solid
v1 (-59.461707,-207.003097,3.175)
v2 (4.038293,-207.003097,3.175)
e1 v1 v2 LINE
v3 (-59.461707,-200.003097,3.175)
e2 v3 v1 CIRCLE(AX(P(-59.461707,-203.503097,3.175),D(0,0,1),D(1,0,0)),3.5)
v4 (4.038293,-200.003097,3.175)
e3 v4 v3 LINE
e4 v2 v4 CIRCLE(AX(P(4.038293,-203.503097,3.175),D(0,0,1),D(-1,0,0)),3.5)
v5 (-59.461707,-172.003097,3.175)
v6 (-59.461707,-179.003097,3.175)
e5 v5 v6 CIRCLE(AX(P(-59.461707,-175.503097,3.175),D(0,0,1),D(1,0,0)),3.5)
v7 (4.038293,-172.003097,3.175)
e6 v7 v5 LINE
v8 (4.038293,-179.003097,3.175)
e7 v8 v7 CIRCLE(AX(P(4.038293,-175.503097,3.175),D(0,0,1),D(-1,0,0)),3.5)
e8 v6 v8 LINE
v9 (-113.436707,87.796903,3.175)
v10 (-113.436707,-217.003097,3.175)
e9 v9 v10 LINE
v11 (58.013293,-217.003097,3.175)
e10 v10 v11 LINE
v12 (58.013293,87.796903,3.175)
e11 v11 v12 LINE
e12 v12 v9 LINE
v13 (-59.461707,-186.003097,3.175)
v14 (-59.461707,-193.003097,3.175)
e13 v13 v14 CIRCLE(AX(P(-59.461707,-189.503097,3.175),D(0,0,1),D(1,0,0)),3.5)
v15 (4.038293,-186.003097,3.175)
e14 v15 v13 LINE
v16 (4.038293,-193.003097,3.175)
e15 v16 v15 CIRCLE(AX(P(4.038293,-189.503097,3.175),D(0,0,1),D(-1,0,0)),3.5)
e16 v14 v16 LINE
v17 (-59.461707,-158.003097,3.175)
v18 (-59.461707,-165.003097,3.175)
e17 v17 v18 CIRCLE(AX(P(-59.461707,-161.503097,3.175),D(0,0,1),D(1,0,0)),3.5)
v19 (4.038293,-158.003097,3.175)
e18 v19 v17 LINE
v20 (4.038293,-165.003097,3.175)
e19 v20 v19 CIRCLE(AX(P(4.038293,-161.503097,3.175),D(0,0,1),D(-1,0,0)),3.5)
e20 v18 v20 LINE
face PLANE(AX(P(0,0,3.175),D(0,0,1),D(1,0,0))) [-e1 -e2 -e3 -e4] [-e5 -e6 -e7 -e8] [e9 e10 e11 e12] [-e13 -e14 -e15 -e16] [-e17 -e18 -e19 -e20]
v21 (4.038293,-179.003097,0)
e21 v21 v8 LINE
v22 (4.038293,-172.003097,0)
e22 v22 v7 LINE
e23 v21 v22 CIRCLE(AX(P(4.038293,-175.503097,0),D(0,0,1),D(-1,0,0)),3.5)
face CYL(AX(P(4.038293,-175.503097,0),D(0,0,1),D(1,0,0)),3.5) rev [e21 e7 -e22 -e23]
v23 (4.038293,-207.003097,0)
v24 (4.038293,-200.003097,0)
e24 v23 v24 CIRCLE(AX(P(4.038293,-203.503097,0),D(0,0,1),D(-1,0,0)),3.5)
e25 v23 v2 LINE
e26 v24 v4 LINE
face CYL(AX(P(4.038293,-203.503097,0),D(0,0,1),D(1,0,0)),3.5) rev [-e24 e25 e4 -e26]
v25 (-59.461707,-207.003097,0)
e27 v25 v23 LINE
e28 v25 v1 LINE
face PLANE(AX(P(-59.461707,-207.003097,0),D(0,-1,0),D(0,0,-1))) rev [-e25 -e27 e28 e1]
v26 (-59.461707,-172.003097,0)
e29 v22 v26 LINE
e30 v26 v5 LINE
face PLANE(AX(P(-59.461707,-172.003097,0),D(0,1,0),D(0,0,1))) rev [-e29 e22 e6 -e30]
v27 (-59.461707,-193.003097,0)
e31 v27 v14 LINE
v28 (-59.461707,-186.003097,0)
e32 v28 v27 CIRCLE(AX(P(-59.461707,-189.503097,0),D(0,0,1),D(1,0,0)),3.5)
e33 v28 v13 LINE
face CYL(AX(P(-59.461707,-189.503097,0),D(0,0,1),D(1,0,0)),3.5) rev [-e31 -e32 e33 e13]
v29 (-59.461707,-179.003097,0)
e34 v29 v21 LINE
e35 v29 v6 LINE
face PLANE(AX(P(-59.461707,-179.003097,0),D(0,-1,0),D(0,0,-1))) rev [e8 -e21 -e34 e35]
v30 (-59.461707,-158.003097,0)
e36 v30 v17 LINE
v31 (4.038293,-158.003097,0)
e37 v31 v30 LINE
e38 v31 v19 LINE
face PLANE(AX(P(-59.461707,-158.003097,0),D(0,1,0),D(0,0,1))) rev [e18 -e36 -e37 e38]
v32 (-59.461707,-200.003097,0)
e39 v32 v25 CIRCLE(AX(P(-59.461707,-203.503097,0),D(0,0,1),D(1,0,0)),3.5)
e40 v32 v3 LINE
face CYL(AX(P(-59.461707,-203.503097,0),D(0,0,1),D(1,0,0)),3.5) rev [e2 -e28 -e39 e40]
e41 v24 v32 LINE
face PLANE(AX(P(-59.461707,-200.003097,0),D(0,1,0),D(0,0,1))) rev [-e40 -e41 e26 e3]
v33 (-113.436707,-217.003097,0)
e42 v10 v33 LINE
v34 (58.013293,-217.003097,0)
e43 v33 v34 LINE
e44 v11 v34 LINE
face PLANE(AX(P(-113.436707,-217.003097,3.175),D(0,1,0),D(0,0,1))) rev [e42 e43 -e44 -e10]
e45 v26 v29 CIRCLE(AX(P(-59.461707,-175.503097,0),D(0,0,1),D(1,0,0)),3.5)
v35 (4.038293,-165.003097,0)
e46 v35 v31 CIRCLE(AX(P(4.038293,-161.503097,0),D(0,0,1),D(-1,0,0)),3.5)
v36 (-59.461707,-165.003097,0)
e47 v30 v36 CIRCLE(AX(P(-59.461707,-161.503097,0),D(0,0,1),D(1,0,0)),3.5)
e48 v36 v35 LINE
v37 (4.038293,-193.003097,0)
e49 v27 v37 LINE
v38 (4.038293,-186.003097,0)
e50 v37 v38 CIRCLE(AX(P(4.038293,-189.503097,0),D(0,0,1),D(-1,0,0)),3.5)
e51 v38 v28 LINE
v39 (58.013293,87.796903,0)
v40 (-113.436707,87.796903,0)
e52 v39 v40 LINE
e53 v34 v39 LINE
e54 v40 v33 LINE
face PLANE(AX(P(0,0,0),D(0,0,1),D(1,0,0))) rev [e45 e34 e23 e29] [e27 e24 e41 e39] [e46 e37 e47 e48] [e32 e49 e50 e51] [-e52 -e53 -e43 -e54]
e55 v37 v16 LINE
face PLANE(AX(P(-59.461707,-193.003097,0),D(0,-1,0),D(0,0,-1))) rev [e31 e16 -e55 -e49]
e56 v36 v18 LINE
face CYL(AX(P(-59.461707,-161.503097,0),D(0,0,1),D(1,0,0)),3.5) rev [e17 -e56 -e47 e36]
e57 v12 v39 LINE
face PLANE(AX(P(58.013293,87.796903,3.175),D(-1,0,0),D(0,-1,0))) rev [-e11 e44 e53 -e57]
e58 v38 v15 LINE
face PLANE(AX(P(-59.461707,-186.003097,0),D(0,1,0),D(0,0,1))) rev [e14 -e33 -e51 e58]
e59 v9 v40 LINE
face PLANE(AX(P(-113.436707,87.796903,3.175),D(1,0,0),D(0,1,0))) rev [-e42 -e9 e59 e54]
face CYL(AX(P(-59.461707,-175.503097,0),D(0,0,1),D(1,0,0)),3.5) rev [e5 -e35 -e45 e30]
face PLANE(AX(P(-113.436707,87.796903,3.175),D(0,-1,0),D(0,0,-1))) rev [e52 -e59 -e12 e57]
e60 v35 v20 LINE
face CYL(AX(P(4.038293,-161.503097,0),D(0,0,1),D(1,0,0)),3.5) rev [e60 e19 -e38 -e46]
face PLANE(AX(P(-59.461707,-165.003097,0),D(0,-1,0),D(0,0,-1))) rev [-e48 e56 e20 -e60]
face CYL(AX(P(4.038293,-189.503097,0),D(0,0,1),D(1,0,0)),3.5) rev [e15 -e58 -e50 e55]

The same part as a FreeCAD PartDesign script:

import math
import FreeCAD as App
import Part
import Sketcher

V = App.Vector
Q = App.Units.Quantity

doc = App.newDocument("Part")
body = doc.addObject("PartDesign::Body", "Body")

# Sketch on XY plane
sketch1 = doc.addObject("Sketcher::SketchObject", "Sketch")
body.addObject(sketch1)
sketch1.AttachmentSupport = (doc.XY_Plane, [""])
sketch1.MapMode = "FlatFace"
sketch1.addGeometry([
    Part.LineSegment(V(-113, 88, 0), V(-113, -217, 0)),
    Part.LineSegment(V(-113, -217, 0), V(58, -217, 0)),
    Part.LineSegment(V(58, -217, 0), V(58, 88, 0)),
    Part.LineSegment(V(58, 88, 0), V(-113, 88, 0)),
], False)
sketch1.addConstraint([
    Sketcher.Constraint("Coincident", 0, 2, 1, 1),
    Sketcher.Constraint("Coincident", 1, 2, 2, 1),
    Sketcher.Constraint("Coincident", 2, 2, 3, 1),
    Sketcher.Constraint("Coincident", 3, 2, 0, 1),
    Sketcher.Constraint("Vertical", 0),
    Sketcher.Constraint("Horizontal", 1),
    Sketcher.Constraint("Vertical", 2),
    Sketcher.Constraint("Horizontal", 3),
    Sketcher.Constraint("DistanceY", 0, 2, 0, 1, Q("12 in")),
    Sketcher.Constraint("DistanceX", 1, 1, 1, 2, Q("6.75 in")),
    Sketcher.Constraint("DistanceX", 0, 2, -1, 1, 113.436707),
    Sketcher.Constraint("DistanceY", 0, 2, -1, 1, 217.003097),
])
pad1 = doc.addObject("PartDesign::Pad", "Pad")
body.addObject(pad1)
pad1.Profile = sketch1
pad1.Length = Q("0.125 in")

# Sketch on XY plane
sketch2 = doc.addObject("Sketcher::SketchObject", "Sketch001")
body.addObject(sketch2)
sketch2.AttachmentSupport = (doc.XY_Plane, [""])
sketch2.MapMode = "FlatFace"
sketch2.AttachmentOffset = App.Placement(V(0, 0, 0.125 * 25.4), App.Rotation())
sketch2.addGeometry([
    Part.LineSegment(V(4, -200, 0), V(-59.5, -200, 0)),  # 0
    Part.ArcOfCircle(Part.Circle(V(-59.5, -203.5, 0), V(0, 0, 1), 3.5), math.radians(90), math.radians(270)),  # 1
    Part.LineSegment(V(-59.5, -207, 0), V(4, -207, 0)),  # 2
    Part.ArcOfCircle(Part.Circle(V(4, -203.5, 0), V(0, 0, 1), 3.5), math.radians(-90), math.radians(90)),  # 3
    Part.LineSegment(V(4, -186, 0), V(-59.5, -186, 0)),  # 4
    Part.ArcOfCircle(Part.Circle(V(-59.5, -189.5, 0), V(0, 0, 1), 3.5), math.radians(90), math.radians(270)),  # 5
    Part.LineSegment(V(-59.5, -193, 0), V(4, -193, 0)),  # 6
    Part.ArcOfCircle(Part.Circle(V(4, -189.5, 0), V(0, 0, 1), 3.5), math.radians(-90), math.radians(90)),  # 7
    Part.LineSegment(V(4, -172, 0), V(-59.5, -172, 0)),  # 8
    Part.ArcOfCircle(Part.Circle(V(-59.5, -175.5, 0), V(0, 0, 1), 3.5), math.radians(90), math.radians(270)),  # 9
    Part.LineSegment(V(-59.5, -179, 0), V(4, -179, 0)),  # 10
    Part.ArcOfCircle(Part.Circle(V(4, -175.5, 0), V(0, 0, 1), 3.5), math.radians(-90), math.radians(90)),  # 11
    Part.LineSegment(V(4, -158, 0), V(-59.5, -158, 0)),  # 12
    Part.ArcOfCircle(Part.Circle(V(-59.5, -161.5, 0), V(0, 0, 1), 3.5), math.radians(90), math.radians(270)),  # 13
    Part.LineSegment(V(-59.5, -165, 0), V(4, -165, 0)),  # 14
    Part.ArcOfCircle(Part.Circle(V(4, -161.5, 0), V(0, 0, 1), 3.5), math.radians(-90), math.radians(90)),  # 15
], False)
sketch2.addConstraint([
    Sketcher.Constraint("Tangent", 0, 2, 1, 1),
    Sketcher.Constraint("Tangent", 1, 2, 2, 1),
    Sketcher.Constraint("Tangent", 2, 2, 3, 1),
    Sketcher.Constraint("Tangent", 3, 2, 0, 1),
    Sketcher.Constraint("Tangent", 4, 2, 5, 1),
    Sketcher.Constraint("Tangent", 5, 2, 6, 1),
    Sketcher.Constraint("Tangent", 6, 2, 7, 1),
    Sketcher.Constraint("Tangent", 7, 2, 4, 1),
    Sketcher.Constraint("Tangent", 8, 2, 9, 1),
    Sketcher.Constraint("Tangent", 9, 2, 10, 1),
    Sketcher.Constraint("Tangent", 10, 2, 11, 1),
    Sketcher.Constraint("Tangent", 11, 2, 8, 1),
    Sketcher.Constraint("Tangent", 12, 2, 13, 1),
    Sketcher.Constraint("Tangent", 13, 2, 14, 1),
    Sketcher.Constraint("Tangent", 14, 2, 15, 1),
    Sketcher.Constraint("Tangent", 15, 2, 12, 1),
    Sketcher.Constraint("Horizontal", 0),
    Sketcher.Constraint("Horizontal", 2),
    Sketcher.Constraint("Horizontal", 4),
    Sketcher.Constraint("Horizontal", 6),
    Sketcher.Constraint("Horizontal", 8),
    Sketcher.Constraint("Horizontal", 10),
    Sketcher.Constraint("Horizontal", 12),
    Sketcher.Constraint("Horizontal", 14),
    Sketcher.Constraint("Equal", 3, 5),
    Sketcher.Constraint("Equal", 7, 9),
    Sketcher.Constraint("Equal", 11, 13),
    Sketcher.Constraint("Vertical", 1, 3, 5, 3),
    Sketcher.Constraint("Vertical", 3, 3, 7, 3),
    Sketcher.Constraint("Vertical", 5, 3, 9, 3),
    Sketcher.Constraint("Vertical", 7, 3, 11, 3),
    Sketcher.Constraint("Vertical", 9, 3, 13, 3),
    Sketcher.Constraint("Vertical", 11, 3, 15, 3),
    Sketcher.Constraint("DistanceX", 0, 2, 0, 1, Q("2.5 in")),
    Sketcher.Constraint("Radius", 1, 3.5),
    Sketcher.Constraint("DistanceY", 1, 3, 5, 3, 14.0),
    Sketcher.Constraint("DistanceY", 5, 3, 9, 3, 14.0),
    Sketcher.Constraint("DistanceY", 9, 3, 13, 3, 14.0),
    Sketcher.Constraint("DistanceX", 1, 3, -1, 1, 59.461707),
    Sketcher.Constraint("DistanceY", 1, 3, -1, 1, 203.503097),
])
pocket1 = doc.addObject("PartDesign::Pocket", "Pocket")
body.addObject(pocket1)
pocket1.Profile = sketch2
pocket1.Length = Q("0.125 in")

doc.recompute()
